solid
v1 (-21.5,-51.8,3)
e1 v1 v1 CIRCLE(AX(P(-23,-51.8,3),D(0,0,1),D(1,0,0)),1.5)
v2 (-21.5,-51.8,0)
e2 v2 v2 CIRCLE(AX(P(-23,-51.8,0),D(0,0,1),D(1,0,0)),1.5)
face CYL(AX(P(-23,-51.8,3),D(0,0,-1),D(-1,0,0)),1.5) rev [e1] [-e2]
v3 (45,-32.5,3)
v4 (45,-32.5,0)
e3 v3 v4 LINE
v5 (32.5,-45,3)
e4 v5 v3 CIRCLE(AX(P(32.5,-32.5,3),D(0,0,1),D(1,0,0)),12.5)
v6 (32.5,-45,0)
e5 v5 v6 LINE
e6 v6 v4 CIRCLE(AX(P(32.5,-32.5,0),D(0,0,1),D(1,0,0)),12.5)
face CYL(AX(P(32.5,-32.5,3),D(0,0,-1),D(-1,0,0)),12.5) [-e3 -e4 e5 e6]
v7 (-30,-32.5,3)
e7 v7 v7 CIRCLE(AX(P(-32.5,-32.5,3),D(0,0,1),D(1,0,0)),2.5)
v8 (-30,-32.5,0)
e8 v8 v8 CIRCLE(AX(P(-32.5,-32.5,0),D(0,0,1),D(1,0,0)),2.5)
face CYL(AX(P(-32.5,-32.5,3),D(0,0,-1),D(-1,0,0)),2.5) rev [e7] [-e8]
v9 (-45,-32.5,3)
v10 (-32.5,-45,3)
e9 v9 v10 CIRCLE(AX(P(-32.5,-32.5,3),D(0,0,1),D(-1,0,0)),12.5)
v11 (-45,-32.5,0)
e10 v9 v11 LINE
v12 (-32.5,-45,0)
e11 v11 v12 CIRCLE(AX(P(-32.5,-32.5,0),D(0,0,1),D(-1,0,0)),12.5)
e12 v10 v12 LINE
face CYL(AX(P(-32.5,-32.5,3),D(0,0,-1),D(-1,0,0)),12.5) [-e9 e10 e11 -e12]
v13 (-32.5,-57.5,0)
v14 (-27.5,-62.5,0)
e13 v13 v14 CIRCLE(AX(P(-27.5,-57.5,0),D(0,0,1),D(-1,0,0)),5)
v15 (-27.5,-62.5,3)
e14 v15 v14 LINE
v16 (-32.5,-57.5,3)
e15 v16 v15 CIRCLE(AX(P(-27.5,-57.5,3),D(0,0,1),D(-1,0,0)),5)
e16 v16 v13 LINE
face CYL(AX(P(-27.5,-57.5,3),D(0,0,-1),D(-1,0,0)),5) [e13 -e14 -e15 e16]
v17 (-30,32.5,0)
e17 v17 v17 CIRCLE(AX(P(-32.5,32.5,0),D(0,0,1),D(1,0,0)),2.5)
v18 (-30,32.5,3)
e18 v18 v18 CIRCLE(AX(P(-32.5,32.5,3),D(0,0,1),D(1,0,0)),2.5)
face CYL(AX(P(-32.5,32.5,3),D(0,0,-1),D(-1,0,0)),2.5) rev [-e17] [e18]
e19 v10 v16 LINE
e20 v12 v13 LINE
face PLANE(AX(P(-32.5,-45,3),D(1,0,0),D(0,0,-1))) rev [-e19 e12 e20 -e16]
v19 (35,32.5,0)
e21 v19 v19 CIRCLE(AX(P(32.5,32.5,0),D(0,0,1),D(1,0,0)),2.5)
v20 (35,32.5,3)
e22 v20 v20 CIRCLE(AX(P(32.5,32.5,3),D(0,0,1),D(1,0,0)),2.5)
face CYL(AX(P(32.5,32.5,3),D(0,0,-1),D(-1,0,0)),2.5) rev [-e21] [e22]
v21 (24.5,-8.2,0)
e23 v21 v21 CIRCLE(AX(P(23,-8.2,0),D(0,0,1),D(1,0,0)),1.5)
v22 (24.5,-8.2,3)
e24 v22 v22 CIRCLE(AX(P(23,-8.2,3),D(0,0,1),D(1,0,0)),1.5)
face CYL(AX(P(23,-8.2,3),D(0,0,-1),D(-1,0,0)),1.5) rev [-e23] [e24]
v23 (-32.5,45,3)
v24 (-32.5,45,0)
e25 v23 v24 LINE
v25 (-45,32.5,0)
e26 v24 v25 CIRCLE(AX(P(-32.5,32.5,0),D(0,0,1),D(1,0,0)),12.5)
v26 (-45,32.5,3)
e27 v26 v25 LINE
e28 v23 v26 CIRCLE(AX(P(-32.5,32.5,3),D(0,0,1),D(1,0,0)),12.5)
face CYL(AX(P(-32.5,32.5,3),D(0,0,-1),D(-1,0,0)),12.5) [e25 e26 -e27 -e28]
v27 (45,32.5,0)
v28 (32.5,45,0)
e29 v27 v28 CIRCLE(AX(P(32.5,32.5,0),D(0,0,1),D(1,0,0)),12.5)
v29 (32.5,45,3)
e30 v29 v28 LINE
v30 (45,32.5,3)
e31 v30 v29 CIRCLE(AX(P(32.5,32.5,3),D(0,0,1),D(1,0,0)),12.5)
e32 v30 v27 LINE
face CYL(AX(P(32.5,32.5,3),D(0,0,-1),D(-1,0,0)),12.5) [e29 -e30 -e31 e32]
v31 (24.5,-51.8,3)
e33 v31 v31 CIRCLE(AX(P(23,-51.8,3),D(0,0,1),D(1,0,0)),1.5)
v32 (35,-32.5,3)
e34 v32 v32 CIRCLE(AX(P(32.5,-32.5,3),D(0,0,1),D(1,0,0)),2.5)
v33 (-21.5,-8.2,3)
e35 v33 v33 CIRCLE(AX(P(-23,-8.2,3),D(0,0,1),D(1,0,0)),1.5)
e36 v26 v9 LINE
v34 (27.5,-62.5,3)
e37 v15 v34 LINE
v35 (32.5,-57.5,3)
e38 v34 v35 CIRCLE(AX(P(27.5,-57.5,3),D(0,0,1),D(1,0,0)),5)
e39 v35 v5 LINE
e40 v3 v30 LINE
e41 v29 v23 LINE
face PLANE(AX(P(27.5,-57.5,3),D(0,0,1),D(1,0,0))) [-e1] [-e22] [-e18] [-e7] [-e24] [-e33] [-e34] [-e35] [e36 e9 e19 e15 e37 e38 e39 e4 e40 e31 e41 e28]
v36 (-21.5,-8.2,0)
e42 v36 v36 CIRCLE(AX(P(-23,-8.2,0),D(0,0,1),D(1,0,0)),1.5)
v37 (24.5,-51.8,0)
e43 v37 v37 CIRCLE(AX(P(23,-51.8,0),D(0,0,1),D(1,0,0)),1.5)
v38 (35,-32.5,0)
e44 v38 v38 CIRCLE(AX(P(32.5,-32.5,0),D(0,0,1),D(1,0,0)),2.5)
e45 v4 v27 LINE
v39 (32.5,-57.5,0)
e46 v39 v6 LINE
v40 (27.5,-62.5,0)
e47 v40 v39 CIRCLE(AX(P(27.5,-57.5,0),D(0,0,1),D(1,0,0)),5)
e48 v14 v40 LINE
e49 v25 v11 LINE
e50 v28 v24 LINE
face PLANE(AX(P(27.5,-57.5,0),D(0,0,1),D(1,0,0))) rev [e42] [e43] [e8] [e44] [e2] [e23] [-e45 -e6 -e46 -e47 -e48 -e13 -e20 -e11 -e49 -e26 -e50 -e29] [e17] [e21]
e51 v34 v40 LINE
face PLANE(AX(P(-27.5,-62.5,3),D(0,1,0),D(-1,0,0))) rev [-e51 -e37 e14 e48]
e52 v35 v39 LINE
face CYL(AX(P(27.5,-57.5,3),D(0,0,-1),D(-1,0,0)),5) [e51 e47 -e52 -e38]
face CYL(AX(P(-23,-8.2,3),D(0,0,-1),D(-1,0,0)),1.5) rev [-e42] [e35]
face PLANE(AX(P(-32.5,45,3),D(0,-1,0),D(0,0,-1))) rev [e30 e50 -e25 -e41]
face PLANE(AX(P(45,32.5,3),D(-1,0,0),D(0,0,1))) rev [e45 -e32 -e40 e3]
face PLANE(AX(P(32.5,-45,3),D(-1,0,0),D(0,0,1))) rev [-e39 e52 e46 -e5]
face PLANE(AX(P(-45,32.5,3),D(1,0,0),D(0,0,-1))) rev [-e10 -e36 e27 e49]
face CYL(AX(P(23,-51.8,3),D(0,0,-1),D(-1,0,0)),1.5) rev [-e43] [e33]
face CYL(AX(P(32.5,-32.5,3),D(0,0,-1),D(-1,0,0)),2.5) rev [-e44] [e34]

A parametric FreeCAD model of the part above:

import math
import FreeCAD as App
import Part
import Sketcher

V = App.Vector
Q = App.Units.Quantity

doc = App.newDocument("Part")
body = doc.addObject("PartDesign::Body", "Body")

# Sketch on XY plane
sketch1 = body.newObject("Sketcher::SketchObject", "Sketch")
sketch1.AttachmentSupport = (doc.getObject("XY_Plane"), [""])
sketch1.MapMode = "FlatFace"
sketch1.addGeometry([
    Part.LineSegment(V(32.5, 45, 0), V(-32.5, 45, 0)),  # 0
    Part.ArcOfCircle(Part.Circle(V(-32.5, 32.5, 0), V(0, 0, 1), 12.5), math.radians(90), math.radians(180)),  # 1
    Part.LineSegment(V(-45, 32.5, 0), V(-45, -32.5, 0)),  # 2
    Part.ArcOfCircle(Part.Circle(V(-32.5, -32.5, 0), V(0, 0, 1), 12.5), math.radians(180), math.radians(270)),  # 3
    Part.LineSegment(V(-32.5, -45, 0), V(-32.5, -57.5, 0)),  # 4
    Part.ArcOfCircle(Part.Circle(V(-27.5, -57.5, 0), V(0, 0, 1), 5), math.radians(180), math.radians(270)),  # 5
    Part.LineSegment(V(-27.5, -62.5, 0), V(27.5, -62.5, 0)),  # 6
    Part.ArcOfCircle(Part.Circle(V(27.5, -57.5, 0), V(0, 0, 1), 5), math.radians(-90), math.radians(0)),  # 7
    Part.LineSegment(V(32.5, -57.5, 0), V(32.5, -45, 0)),  # 8
    Part.ArcOfCircle(Part.Circle(V(32.5, -32.5, 0), V(0, 0, 1), 12.5), math.radians(-90), math.radians(0)),  # 9
    Part.LineSegment(V(45, -32.5, 0), V(45, 32.5, 0)),  # 10
    Part.ArcOfCircle(Part.Circle(V(32.5, 32.5, 0), V(0, 0, 1), 12.5), math.radians(0), math.radians(90)),  # 11
    Part.Circle(V(23, -51.8, 0), V(0, 0, 1), 1.5),  # 12
    Part.Circle(V(32.5, -32.5, 0), V(0, 0, 1), 2.5),  # 13
    Part.Circle(V(-23, -51.8, 0), V(0, 0, 1), 1.5),  # 14
    Part.Circle(V(-32.5, -32.5, 0), V(0, 0, 1), 2.5),  # 15
    Part.Circle(V(23, -8.2, 0), V(0, 0, 1), 1.5),  # 16
    Part.Circle(V(32.5, 32.5, 0), V(0, 0, 1), 2.5),  # 17
    Part.Circle(V(-23, -8.2, 0), V(0, 0, 1), 1.5),  # 18
    Part.Circle(V(-32.5, 32.5, 0), V(0, 0, 1), 2.5),  # 19
], False)
sketch1.addConstraint([
    Sketcher.Constraint("Tangent", 0, 2, 1, 1),
    Sketcher.Constraint("Tangent", 1, 2, 2, 1),
    Sketcher.Constraint("Tangent", 2, 2, 3, 1),
    Sketcher.Constraint("Coincident", 3, 2, 4, 1),
    Sketcher.Constraint("Tangent", 4, 2, 5, 1),
    Sketcher.Constraint("Tangent", 5, 2, 6, 1),
    Sketcher.Constraint("Tangent", 6, 2, 7, 1),
    Sketcher.Constraint("Tangent", 7, 2, 8, 1),
    Sketcher.Constraint("Coincident", 8, 2, 9, 1),
    Sketcher.Constraint("Tangent", 9, 2, 10, 1),
    Sketcher.Constraint("Tangent", 10, 2, 11, 1),
    Sketcher.Constraint("Tangent", 11, 2, 0, 1),
    Sketcher.Constraint("Horizontal", 0),
    Sketcher.Constraint("Vertical", 2),
    Sketcher.Constraint("Vertical", 4),
    Sketcher.Constraint("Horizontal", 6),
    Sketcher.Constraint("Vertical", 8),
    Sketcher.Constraint("Vertical", 10),
    Sketcher.Constraint("Coincident", 13, 3, 9, 3),
    Sketcher.Constraint("Coincident", 15, 3, 3, 3),
    Sketcher.Constraint("Coincident", 17, 3, 11, 3),
    Sketcher.Constraint("Coincident", 19, 3, 1, 3),
    Sketcher.Constraint("Equal", 1, 3),
    Sketcher.Constraint("Equal", 5, 7),
    Sketcher.Constraint("Equal", 3, 9),
    Sketcher.Constraint("Equal", 9, 11),
    Sketcher.Constraint("Equal", 12, 14),
    Sketcher.Constraint("Equal", 13, 15),
    Sketcher.Constraint("Equal", 14, 16),
    Sketcher.Constraint("Equal", 15, 17),
    Sketcher.Constraint("Equal", 16, 18),
    Sketcher.Constraint("Equal", 17, 19),
    Sketcher.Constraint("Symmetric", 1, 3, 9, 3, -1, 1),
    Sketcher.Constraint("Symmetric", 3, 2, 11, 2, -1, 1),
    Sketcher.Constraint("Symmetric", 12, 3, 14, 3, -2),
    Sketcher.Constraint("Symmetric", 16, 3, 18, 3, -2),
    Sketcher.Constraint("Vertical", 12, 3, 16, 3),
    Sketcher.Constraint("Vertical", 17, 3, 7, 2),
    Sketcher.Constraint("Equal", 0, 2),
    Sketcher.Constraint("Diameter", 12, Q("3 mm")),
    Sketcher.Constraint("Diameter", 13, Q("5 mm")),
    Sketcher.Constraint("Radius", 5, Q("5 mm")),
    Sketcher.Constraint("Radius", 1, Q("12.5 mm")),
    Sketcher.Constraint("DistanceX", 0, 2, 0, 1, Q("65 mm")),
    Sketcher.Constraint("DistanceY", 4, 2, 4, 1, Q("12.5 mm")),
    Sketcher.Constraint("DistanceX", -1, 1, 12, 3, Q("23 mm")),
    Sketcher.Constraint("DistanceY", 12, 3, -1, 1, Q("51.8 mm")),
    Sketcher.Constraint("DistanceY", 16, 3, -1, 1, Q("8.2 mm")),
])
pad1 = body.newObject("PartDesign::Pad", "Pad")
pad1.Profile = sketch1
pad1.Length = 3

doc.recompute()
